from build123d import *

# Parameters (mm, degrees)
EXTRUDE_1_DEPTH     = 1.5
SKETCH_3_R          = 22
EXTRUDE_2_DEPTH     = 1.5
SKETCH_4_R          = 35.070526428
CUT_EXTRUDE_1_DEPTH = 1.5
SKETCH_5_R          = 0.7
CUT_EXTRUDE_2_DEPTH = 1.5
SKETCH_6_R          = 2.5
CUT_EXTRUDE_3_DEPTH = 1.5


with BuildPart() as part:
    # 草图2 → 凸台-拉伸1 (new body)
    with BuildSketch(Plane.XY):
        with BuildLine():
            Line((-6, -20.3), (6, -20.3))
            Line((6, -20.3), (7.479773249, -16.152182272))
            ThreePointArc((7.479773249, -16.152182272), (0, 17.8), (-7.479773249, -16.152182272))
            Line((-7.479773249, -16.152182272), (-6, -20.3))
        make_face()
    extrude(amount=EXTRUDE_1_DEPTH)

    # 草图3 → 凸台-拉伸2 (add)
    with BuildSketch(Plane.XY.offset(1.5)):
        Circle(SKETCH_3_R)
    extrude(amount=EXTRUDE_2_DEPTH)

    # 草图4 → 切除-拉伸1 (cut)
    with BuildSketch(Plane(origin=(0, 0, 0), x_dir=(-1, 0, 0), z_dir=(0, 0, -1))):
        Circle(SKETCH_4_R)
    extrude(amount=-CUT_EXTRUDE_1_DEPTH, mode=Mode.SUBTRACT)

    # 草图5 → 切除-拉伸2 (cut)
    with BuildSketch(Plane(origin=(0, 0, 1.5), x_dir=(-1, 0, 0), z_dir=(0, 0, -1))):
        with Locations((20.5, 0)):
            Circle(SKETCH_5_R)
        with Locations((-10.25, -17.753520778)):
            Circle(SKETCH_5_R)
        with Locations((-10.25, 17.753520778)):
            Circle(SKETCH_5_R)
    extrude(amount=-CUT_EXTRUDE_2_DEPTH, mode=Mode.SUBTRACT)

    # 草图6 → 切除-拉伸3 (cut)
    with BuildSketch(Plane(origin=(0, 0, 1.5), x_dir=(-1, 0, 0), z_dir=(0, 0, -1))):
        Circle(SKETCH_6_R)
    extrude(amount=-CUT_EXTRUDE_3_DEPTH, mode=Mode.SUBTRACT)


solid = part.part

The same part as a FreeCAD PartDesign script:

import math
import FreeCAD as App
import Part
import Sketcher
from FreeCAD import Vector

doc = App.newDocument("Part")
body = doc.addObject("PartDesign::Body", "Body")

sketch1 = body.newObject("Sketcher::SketchObject", "Sketch")
sketch1.AttachmentSupport = (doc.getObject("XY_Plane"), [""])
sketch1.MapMode = "FlatFace"
sketch1.addGeometry(Part.LineSegment(Vector(-6, -20.3, 0), Vector(6, -20.3, 0)), False)
sketch1.addGeometry(Part.LineSegment(Vector(6, -20.3, 0), Vector(7.5, -16.2, 0)), False)
sketch1.addGeometry(Part.ArcOfCircle(Part.Circle(Vector(0, 0, 0), Vector(0, 0, 1), 17.8), math.radians(-65), math.radians(245)), False)
sketch1.addGeometry(Part.LineSegment(Vector(-7.5, -16.2, 0), Vector(-6, -20.3, 0)), False)
sketch1.addConstraint(Sketcher.Constraint("Coincident", 0, 2, 1, 1))
sketch1.addConstraint(Sketcher.Constraint("Coincident", 1, 2, 2, 1))
sketch1.addConstraint(Sketcher.Constraint("Coincident", 2, 2, 3, 1))
sketch1.addConstraint(Sketcher.Constraint("Coincident", 3, 2, 0, 1))
sketch1.addConstraint(Sketcher.Constraint("Horizontal", 0))
sketch1.addConstraint(Sketcher.Constraint("Coincident", 2, 3, -1, 1))
sketch1.addConstraint(Sketcher.Constraint("Horizontal", 1, 2, 2, 2))
sketch1.addConstraint(Sketcher.Constraint("Equal", 1, 3))
sketch1.addConstraint(Sketcher.Constraint("Radius", 2, 17.8))
sketch1.addConstraint(Sketcher.Constraint("DistanceX", 0, 1, 0, 2, 12.0))
sketch1.addConstraint(Sketcher.Constraint("DistanceY", 0, 2, -1, 1, 20.3))
sketch1.addConstraint(Sketcher.Constraint("Distance", 1, 4.403876))
pad1 = body.newObject("PartDesign::Pad", "Pad")
pad1.Profile = sketch1
pad1.Length = 1.5

sketch2 = body.newObject("Sketcher::SketchObject", "Sketch001")
sketch2.AttachmentSupport = (doc.getObject("XY_Plane"), [""])
sketch2.MapMode = "FlatFace"
sketch2.AttachmentOffset = App.Placement(Vector(0, 0, 1.5), App.Rotation())
sketch2.addGeometry(Part.Circle(Vector(0, 0, 0), Vector(0, 0, 1), 22), False)
sketch2.addConstraint(Sketcher.Constraint("Coincident", 0, 3, -1, 1))
sketch2.addConstraint(Sketcher.Constraint("Diameter", 0, 44.0))
pad2 = body.newObject("PartDesign::Pad", "Pad001")
pad2.Profile = sketch2
pad2.Length = 1.5

sketch3 = body.newObject("Sketcher::SketchObject", "Sketch002")
sketch3.AttachmentSupport = (doc.getObject("XY_Plane"), [""])
sketch3.MapMode = "FlatFace"
sketch3.addGeometry(Part.Circle(Vector(0, 0, 0), Vector(0, 0, 1), 35), False)
sketch3.addConstraint(Sketcher.Constraint("Coincident", 0, 3, -1, 1))
sketch3.addConstraint(Sketcher.Constraint("Diameter", 0, 70.141053))
pocket1 = body.newObject("PartDesign::Pocket", "Pocket")
pocket1.Profile = sketch3
pocket1.Length = 1.5
pocket1.Reversed = True

sketch4 = body.newObject("Sketcher::SketchObject", "Sketch003")
sketch4.AttachmentSupport = (doc.getObject("XY_Plane"), [""])
sketch4.MapMode = "FlatFace"
sketch4.AttachmentOffset = App.Placement(Vector(0, 0, 1.5), App.Rotation())
sketch4.addGeometry(Part.Circle(Vector(-20.5, 0, 0), Vector(0, 0, 1), 0.7), False)
sketch4.addGeometry(Part.Circle(Vector(10.2, -17.8, 0), Vector(0, 0, 1), 0.7), False)
sketch4.addGeometry(Part.Circle(Vector(10.2, 17.8, 0), Vector(0, 0, 1), 0.7), False)
sketch4.addConstraint(Sketcher.Constraint("Equal", 0, 1))
sketch4.addConstraint(Sketcher.Constraint("Equal", 1, 2))
sketch4.addConstraint(Sketcher.Constraint("Symmetric", 1, 3, 2, 3, -1))
sketch4.addConstraint(Sketcher.Constraint("PointOnObject", 0, 3, -1))
sketch4.addConstraint(Sketcher.Constraint("Diameter", 0, 1.4))
sketch4.addConstraint(Sketcher.Constraint("DistanceX", 0, 3, -1, 1, 20.5))
sketch4.addConstraint(Sketcher.Constraint("DistanceX", -1, 1, 1, 3, 10.25))
sketch4.addConstraint(Sketcher.Constraint("DistanceY", 1, 3, -1, 1, 17.753521))
pocket2 = body.newObject("PartDesign::Pocket", "Pocket001")
pocket2.Profile = sketch4
pocket2.Length = 1.5
pocket2.Reversed = True

sketch5 = body.newObject("Sketcher::SketchObject", "Sketch004")
sketch5.AttachmentSupport = (doc.getObject("XY_Plane"), [""])
sketch5.MapMode = "FlatFace"
sketch5.AttachmentOffset = App.Placement(Vector(0, 0, 1.5), App.Rotation())
sketch5.addGeometry(Part.Circle(Vector(0, 0, 0), Vector(0, 0, 1), 2.5), False)
sketch5.addConstraint(Sketcher.Constraint("Coincident", 0, 3, -1, 1))
sketch5.addConstraint(Sketcher.Constraint("Diameter", 0, 5.0))
pocket3 = body.newObject("PartDesign::Pocket", "Pocket002")
pocket3.Profile = sketch5
pocket3.Length = 1.5
pocket3.Reversed = True

doc.recompute()
